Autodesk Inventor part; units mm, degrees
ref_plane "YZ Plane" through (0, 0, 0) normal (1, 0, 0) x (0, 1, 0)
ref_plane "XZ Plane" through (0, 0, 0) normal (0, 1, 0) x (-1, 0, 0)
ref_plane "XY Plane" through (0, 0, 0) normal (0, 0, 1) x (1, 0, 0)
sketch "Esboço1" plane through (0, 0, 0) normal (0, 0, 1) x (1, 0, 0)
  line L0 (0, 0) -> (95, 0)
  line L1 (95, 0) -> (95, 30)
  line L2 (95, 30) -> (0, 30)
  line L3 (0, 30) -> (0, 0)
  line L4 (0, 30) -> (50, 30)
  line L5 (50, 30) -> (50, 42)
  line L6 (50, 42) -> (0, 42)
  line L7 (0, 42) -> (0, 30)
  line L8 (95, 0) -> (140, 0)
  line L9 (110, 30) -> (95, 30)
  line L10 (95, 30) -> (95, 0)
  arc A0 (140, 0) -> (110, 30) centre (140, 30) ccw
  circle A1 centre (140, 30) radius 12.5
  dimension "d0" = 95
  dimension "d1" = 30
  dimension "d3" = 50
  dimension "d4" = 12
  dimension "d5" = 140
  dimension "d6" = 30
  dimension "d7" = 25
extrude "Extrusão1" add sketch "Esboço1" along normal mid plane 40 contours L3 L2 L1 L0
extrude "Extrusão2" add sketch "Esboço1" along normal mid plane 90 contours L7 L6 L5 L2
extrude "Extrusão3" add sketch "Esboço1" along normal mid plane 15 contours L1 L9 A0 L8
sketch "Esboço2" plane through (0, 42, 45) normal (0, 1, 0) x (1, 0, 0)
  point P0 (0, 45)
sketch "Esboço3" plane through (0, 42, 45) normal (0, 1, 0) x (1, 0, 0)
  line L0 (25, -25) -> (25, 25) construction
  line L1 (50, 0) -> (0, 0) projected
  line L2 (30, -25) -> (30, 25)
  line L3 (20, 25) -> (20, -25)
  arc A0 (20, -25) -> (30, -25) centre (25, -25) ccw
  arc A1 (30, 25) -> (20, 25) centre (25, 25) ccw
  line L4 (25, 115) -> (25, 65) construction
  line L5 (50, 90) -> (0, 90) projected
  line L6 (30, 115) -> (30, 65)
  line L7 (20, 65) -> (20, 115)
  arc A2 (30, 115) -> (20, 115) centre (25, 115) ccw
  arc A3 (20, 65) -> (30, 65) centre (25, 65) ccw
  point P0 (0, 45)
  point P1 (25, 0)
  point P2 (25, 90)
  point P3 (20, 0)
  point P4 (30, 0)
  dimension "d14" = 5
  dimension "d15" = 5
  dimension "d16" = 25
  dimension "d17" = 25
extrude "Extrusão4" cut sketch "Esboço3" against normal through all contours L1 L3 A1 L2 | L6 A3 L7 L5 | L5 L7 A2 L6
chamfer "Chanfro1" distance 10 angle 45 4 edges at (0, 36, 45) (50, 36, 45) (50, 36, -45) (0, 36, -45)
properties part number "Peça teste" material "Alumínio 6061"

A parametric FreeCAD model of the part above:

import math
import FreeCAD as App
import Part
import Sketcher


def edges_at(feature, points):
    """Names of the edges that pass closest to the given points."""
    edges = feature.Shape.Edges
    near = lambda p: min(range(len(edges)), key=lambda i: edges[i].distToShape(Part.Vertex(*p))[0])
    return sorted({f"Edge{near(p) + 1}" for p in points})


def add_polygon(sketch, points):
    """Adds a closed chain of lines whose ends are joined by coincident constraints."""
    first, n = sketch.GeometryCount, len(points)
    for a, b in zip(points, points[1:] + points[:1]):
        sketch.addGeometry(Part.LineSegment(App.Vector(*a, 0), App.Vector(*b, 0)), False)
    for i in range(n):
        sketch.addConstraint(Sketcher.Constraint("Coincident", first + i, 2, first + (i + 1) % n, 1))

doc = App.newDocument("Part")
body = doc.addObject("PartDesign::Body", "Body")

# Sketch on XY plane
sketch1 = doc.addObject("Sketcher::SketchObject", "Sketch")
body.addObject(sketch1)
sketch1.AttachmentSupport = (doc.XY_Plane, [""])
sketch1.MapMode = "FlatFace"
add_polygon(sketch1, [(0, 30), (0, 0), (95, 0), (95, 30)])  # lines 0-3
sketch1.addConstraint(Sketcher.Constraint("Vertical", 0))
sketch1.addConstraint(Sketcher.Constraint("Horizontal", 1))
sketch1.addConstraint(Sketcher.Constraint("Vertical", 2))
sketch1.addConstraint(Sketcher.Constraint("Horizontal", 3))
sketch1.addConstraint(Sketcher.Constraint("Coincident", 0, 2, -1, 1))
sketch1.addConstraint(Sketcher.Constraint("DistanceX", 1, 1, 1, 2, 95.0))
sketch1.addConstraint(Sketcher.Constraint("DistanceY", 0, 2, 0, 1, 30.0))
pad1 = doc.addObject("PartDesign::Pad", "Pad")
body.addObject(pad1)
pad1.Profile = sketch1
pad1.Length = 40
pad1.Midplane = True

# Sketch on XY plane
sketch2 = doc.addObject("Sketcher::SketchObject", "Sketch001")
body.addObject(sketch2)
sketch2.AttachmentSupport = (doc.XY_Plane, [""])
sketch2.MapMode = "FlatFace"
add_polygon(sketch2, [(0, 42), (0, 30), (50, 30), (50, 42)])  # lines 0-3
sketch2.addConstraint(Sketcher.Constraint("Vertical", 0))
sketch2.addConstraint(Sketcher.Constraint("Horizontal", 1))
sketch2.addConstraint(Sketcher.Constraint("Vertical", 2))
sketch2.addConstraint(Sketcher.Constraint("Horizontal", 3))
sketch2.addConstraint(Sketcher.Constraint("PointOnObject", 0, 2, -2))
sketch2.addConstraint(Sketcher.Constraint("DistanceX", 1, 1, 1, 2, 50.0))
sketch2.addConstraint(Sketcher.Constraint("DistanceY", 0, 2, 0, 1, 12.0))
sketch2.addConstraint(Sketcher.Constraint("DistanceY", -1, 1, 0, 2, 30.0))
pad2 = doc.addObject("PartDesign::Pad", "Pad001")
body.addObject(pad2)
pad2.Profile = sketch2
pad2.Length = 90
pad2.Midplane = True

# Sketch on XY plane
sketch3 = doc.addObject("Sketcher::SketchObject", "Sketch002")
body.addObject(sketch3)
sketch3.AttachmentSupport = (doc.XY_Plane, [""])
sketch3.MapMode = "FlatFace"
sketch3.addGeometry(Part.LineSegment(App.Vector(95, 30, 0), App.Vector(95, 0, 0)), False)
sketch3.addGeometry(Part.LineSegment(App.Vector(95, 0, 0), App.Vector(140, 0, 0)), False)
sketch3.addGeometry(Part.ArcOfCircle(Part.Circle(App.Vector(140, 30, 0), App.Vector(0, 0, 1), 30), math.radians(-90), math.radians(180)), False)
sketch3.addGeometry(Part.LineSegment(App.Vector(110, 30, 0), App.Vector(95, 30, 0)), False)
sketch3.addGeometry(Part.Circle(App.Vector(140, 30, 0), App.Vector(0, 0, 1), 12), False)
sketch3.addConstraint(Sketcher.Constraint("Coincident", 0, 2, 1, 1))
sketch3.addConstraint(Sketcher.Constraint("Tangent", 1, 2, 2, 1))
sketch3.addConstraint(Sketcher.Constraint("Coincident", 2, 2, 3, 1))
sketch3.addConstraint(Sketcher.Constraint("Coincident", 3, 2, 0, 1))
sketch3.addConstraint(Sketcher.Constraint("Vertical", 0))
sketch3.addConstraint(Sketcher.Constraint("Horizontal", 1))
sketch3.addConstraint(Sketcher.Constraint("Horizontal", 3))
sketch3.addConstraint(Sketcher.Constraint("Coincident", 4, 3, 2, 3))
sketch3.addConstraint(Sketcher.Constraint("PointOnObject", 0, 2, -1))
sketch3.addConstraint(Sketcher.Constraint("Horizontal", 4, 3, 2, 2))
sketch3.addConstraint(Sketcher.Constraint("Diameter", 4, 25.0))
sketch3.addConstraint(Sketcher.Constraint("Radius", 2, 30.0))
sketch3.addConstraint(Sketcher.Constraint("DistanceX", -1, 1, 2, 3, 140.0))
sketch3.addConstraint(Sketcher.Constraint("DistanceX", -1, 1, 0, 2, 95.0))
pad3 = doc.addObject("PartDesign::Pad", "Pad002")
body.addObject(pad3)
pad3.Profile = sketch3
pad3.Length = 15
pad3.Midplane = True

# Sketch on XZ plane
sketch4 = doc.addObject("Sketcher::SketchObject", "Sketch003")
body.addObject(sketch4)
sketch4.AttachmentSupport = (doc.XZ_Plane, [""])
sketch4.MapMode = "FlatFace"
sketch4.AttachmentOffset = App.Placement(App.Vector(0, 0, -42), App.Rotation())
sketch4.addGeometry(Part.LineSegment(App.Vector(20, 45, 0), App.Vector(30, 45, 0)), False)
sketch4.addGeometry(Part.LineSegment(App.Vector(30, 45, 0), App.Vector(30, 20, 0)), False)
sketch4.addGeometry(Part.ArcOfCircle(Part.Circle(App.Vector(25, 20, 0), App.Vector(0, 0, 1), 5), math.radians(180), math.radians(360)), False)
sketch4.addGeometry(Part.LineSegment(App.Vector(20, 20, 0), App.Vector(20, 45, 0)), False)
sketch4.addGeometry(Part.LineSegment(App.Vector(30, -20, 0), App.Vector(30, -70, 0)), False)
sketch4.addGeometry(Part.ArcOfCircle(Part.Circle(App.Vector(25, -70, 0), App.Vector(0, 0, 1), 5), math.radians(180), math.radians(360)), False)
sketch4.addGeometry(Part.LineSegment(App.Vector(20, -70, 0), App.Vector(20, -20, 0)), False)
sketch4.addGeometry(Part.ArcOfCircle(Part.Circle(App.Vector(25, -20, 0), App.Vector(0, 0, 1), 5), math.radians(0), math.radians(180)), False)
sketch4.addConstraint(Sketcher.Constraint("Coincident", 0, 2, 1, 1))
sketch4.addConstraint(Sketcher.Constraint("Tangent", 1, 2, 2, 2))
sketch4.addConstraint(Sketcher.Constraint("Tangent", 2, 1, 3, 1))
sketch4.addConstraint(Sketcher.Constraint("Coincident", 3, 2, 0, 1))
sketch4.addConstraint(Sketcher.Constraint("Tangent", 4, 2, 5, 2))
sketch4.addConstraint(Sketcher.Constraint("Tangent", 5, 1, 6, 1))
sketch4.addConstraint(Sketcher.Constraint("Tangent", 6, 2, 7, 2))
sketch4.addConstraint(Sketcher.Constraint("Tangent", 7, 1, 4, 1))
sketch4.addConstraint(Sketcher.Constraint("Horizontal", 0))
sketch4.addConstraint(Sketcher.Constraint("Vertical", 1))
sketch4.addConstraint(Sketcher.Constraint("Vertical", 3))
sketch4.addConstraint(Sketcher.Constraint("Vertical", 4))
sketch4.addConstraint(Sketcher.Constraint("Vertical", 6))
sketch4.addConstraint(Sketcher.Constraint("Equal", 2, 5))
sketch4.addConstraint(Sketcher.Constraint("Symmetric", 2, 3, 7, 3, -1))
sketch4.addConstraint(Sketcher.Constraint("Radius", 2, 5.0))
sketch4.addConstraint(Sketcher.Constraint("DistanceY", 1, 2, 1, 1, 25.0))
sketch4.addConstraint(Sketcher.Constraint("DistanceX", -1, 1, 2, 3, 25.0))
sketch4.addConstraint(Sketcher.Constraint("DistanceY", 4, 2, 4, 1, 50.0))
sketch4.addConstraint(Sketcher.Constraint("DistanceY", -1, 1, 2, 3, 20.0))
pocket1 = doc.addObject("PartDesign::Pocket", "Pocket")
body.addObject(pocket1)
pocket1.Profile = sketch4
pocket1.Type = "ThroughAll"
pocket1.Reversed = True
doc.recompute()

chamfer = doc.addObject("PartDesign::Chamfer", "Chamfer")
body.addObject(chamfer)
chamfer.Base = (pocket1, edges_at(pocket1, [
    (0, 36, 45),
    (50, 36, 45),
    (50, 36, -45),
    (0, 36, -45),
]))
chamfer.Size = 10

doc.recompute()
